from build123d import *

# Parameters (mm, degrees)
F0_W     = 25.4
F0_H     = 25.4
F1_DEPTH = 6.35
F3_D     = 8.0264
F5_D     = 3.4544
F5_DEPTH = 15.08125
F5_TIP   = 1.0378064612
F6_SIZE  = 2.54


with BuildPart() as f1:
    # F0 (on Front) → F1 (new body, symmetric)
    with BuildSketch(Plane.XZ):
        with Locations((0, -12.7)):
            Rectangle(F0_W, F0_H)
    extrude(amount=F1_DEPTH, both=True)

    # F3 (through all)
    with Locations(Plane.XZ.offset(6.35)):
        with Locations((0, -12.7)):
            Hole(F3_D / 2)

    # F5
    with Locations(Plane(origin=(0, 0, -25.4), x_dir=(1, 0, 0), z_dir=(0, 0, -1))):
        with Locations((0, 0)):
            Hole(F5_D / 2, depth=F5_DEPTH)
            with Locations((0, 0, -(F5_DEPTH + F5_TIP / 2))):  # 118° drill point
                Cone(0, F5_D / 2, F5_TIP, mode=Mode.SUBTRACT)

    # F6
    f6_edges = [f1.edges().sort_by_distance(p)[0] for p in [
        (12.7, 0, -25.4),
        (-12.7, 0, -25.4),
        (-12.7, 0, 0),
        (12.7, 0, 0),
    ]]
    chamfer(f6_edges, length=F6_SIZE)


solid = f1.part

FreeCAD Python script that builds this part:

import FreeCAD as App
import Part
import Sketcher
from FreeCAD import Vector
Q = App.Units.Quantity


def edges_at(feature, points):
    """Names of the edges that pass closest to the given points."""
    edges = feature.Shape.Edges
    near = lambda p: min(range(len(edges)), key=lambda i: edges[i].distToShape(Part.Vertex(*p))[0])
    return sorted({f"Edge{near(p) + 1}" for p in points})

doc = App.newDocument("Part")
body = doc.addObject("PartDesign::Body", "Body")

sketch1 = body.newObject("Sketcher::SketchObject", "Sketch")
sketch1.AttachmentSupport = (doc.getObject("XZ_Plane"), [""])
sketch1.MapMode = "FlatFace"
sketch1.addGeometry(Part.LineSegment(Vector(-12.7, 0, 0), Vector(-12.7, -25.4, 0)), False)
sketch1.addGeometry(Part.LineSegment(Vector(-12.7, -25.4, 0), Vector(12.7, -25.4, 0)), False)
sketch1.addGeometry(Part.LineSegment(Vector(12.7, -25.4, 0), Vector(12.7, 0, 0)), False)
sketch1.addGeometry(Part.LineSegment(Vector(12.7, 0, 0), Vector(-12.7, 0, 0)), False)
sketch1.addConstraint(Sketcher.Constraint("Coincident", 0, 2, 1, 1))
sketch1.addConstraint(Sketcher.Constraint("Coincident", 1, 2, 2, 1))
sketch1.addConstraint(Sketcher.Constraint("Coincident", 2, 2, 3, 1))
sketch1.addConstraint(Sketcher.Constraint("Coincident", 3, 2, 0, 1))
sketch1.addConstraint(Sketcher.Constraint("Vertical", 0))
sketch1.addConstraint(Sketcher.Constraint("Horizontal", 1))
sketch1.addConstraint(Sketcher.Constraint("Vertical", 2))
sketch1.addConstraint(Sketcher.Constraint("Horizontal", 3))
sketch1.addConstraint(Sketcher.Constraint("Symmetric", 2, 2, 3, 2, -1, 1))
sketch1.addConstraint(Sketcher.Constraint("Equal", 3, 0))
sketch1.addConstraint(Sketcher.Constraint("DistanceX", 1, 1, 1, 2, Q("1 in")))
pad1 = body.newObject("PartDesign::Pad", "Pad")
pad1.Profile = sketch1
pad1.Length = Q("0.5 in")
pad1.Midplane = True

sketch2 = body.newObject("Sketcher::SketchObject", "Sketch001")
sketch2.AttachmentSupport = (doc.getObject("XZ_Plane"), [""])
sketch2.MapMode = "FlatFace"
sketch2.AttachmentOffset = App.Placement(Vector(0, 0, 0.25 * 25.4), App.Rotation())
sketch2.addGeometry(Part.Circle(Vector(0, -12.7, 0), Vector(0, 0, 1), 4.0132), False)
sketch2.addConstraint(Sketcher.Constraint("PointOnObject", 0, 3, -2))
sketch2.addConstraint(Sketcher.Constraint("Diameter", 0, Q("0.316 in")))
sketch2.addConstraint(Sketcher.Constraint("DistanceY", 0, 3, -1, 1, Q("0.5 in")))
doc.recompute()
hole = body.newObject("PartDesign::Hole", "Hole")
hole.Profile = sketch2
hole.ThreadType = "None"
hole.Diameter = Q("0.316 in")
hole.DepthType = "ThroughAll"

sketch3 = body.newObject("Sketcher::SketchObject", "Sketch002")
sketch3.AttachmentSupport = (doc.getObject("XY_Plane"), [""])
sketch3.MapMode = "FlatFace"
sketch3.AttachmentOffset = App.Placement(Vector(0, 0, -1 * 25.4), App.Rotation())
sketch3.addGeometry(Part.Circle(Vector(0, 0, 0), Vector(0, 0, 1), 1.7272), False)
sketch3.addConstraint(Sketcher.Constraint("Coincident", 0, 3, -1, 1))
sketch3.addConstraint(Sketcher.Constraint("Diameter", 0, Q("0.136 in")))
doc.recompute()
hole2 = body.newObject("PartDesign::Hole", "Hole001")
hole2.Profile = sketch3
hole2.ThreadType = "None"
hole2.Diameter = Q("0.136 in")
hole2.DepthType = "Dimension"
hole2.Depth = Q("0.59375 in")
hole2.DrillPoint = "Angled"
hole2.DrillPointAngle = 118
hole2.Reversed = True
doc.recompute()

chamfer = body.newObject("PartDesign::Chamfer", "Chamfer")
chamfer.Base = (hole2, edges_at(hole2, [
    (12.7, 0, -25.4),
    (-12.7, 0, -25.4),
    (-12.7, 0, 0),
    (12.7, 0, 0),
]))
chamfer.Size = Q("0.1 in")

doc.recompute()
